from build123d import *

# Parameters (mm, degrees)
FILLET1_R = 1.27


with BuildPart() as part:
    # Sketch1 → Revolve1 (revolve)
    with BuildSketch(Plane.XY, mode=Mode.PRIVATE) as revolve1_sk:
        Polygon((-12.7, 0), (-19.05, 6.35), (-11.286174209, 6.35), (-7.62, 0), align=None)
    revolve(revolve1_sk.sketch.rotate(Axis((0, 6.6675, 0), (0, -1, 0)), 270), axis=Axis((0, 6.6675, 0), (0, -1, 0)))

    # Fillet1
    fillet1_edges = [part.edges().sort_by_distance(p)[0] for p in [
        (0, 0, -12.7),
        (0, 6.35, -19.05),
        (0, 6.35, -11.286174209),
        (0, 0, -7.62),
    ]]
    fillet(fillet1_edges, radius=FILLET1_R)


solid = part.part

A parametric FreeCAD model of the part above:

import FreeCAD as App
import Part
import Sketcher

V = App.Vector
Q = App.Units.Quantity


def edges_at(feature, points):
    """Names of the edges that pass closest to the given points."""
    edges = feature.Shape.Edges
    near = lambda p: min(range(len(edges)), key=lambda i: edges[i].distToShape(Part.Vertex(*p))[0])
    return sorted({f"Edge{near(p) + 1}" for p in points})

doc = App.newDocument("Part")
body = doc.addObject("PartDesign::Body", "Body")

sketch1 = body.newObject("Sketcher::SketchObject", "Sketch")
sketch1.AttachmentSupport = (doc.getObject("XY_Plane"), [""])
sketch1.MapMode = "FlatFace"
sketch1.addGeometry([
    Part.LineSegment(V(-19, 6, 0), V(-13, 0, 0)),
    Part.LineSegment(V(-13, 0, 0), V(-8, 0, 0)),
    Part.LineSegment(V(-8, 0, 0), V(-11, 6, 0)),
    Part.LineSegment(V(-11, 6, 0), V(-19, 6, 0)),
], False)
sketch1.addConstraint([
    Sketcher.Constraint("Coincident", 0, 2, 1, 1),
    Sketcher.Constraint("Coincident", 1, 2, 2, 1),
    Sketcher.Constraint("Coincident", 2, 2, 3, 1),
    Sketcher.Constraint("Coincident", 3, 2, 0, 1),
    Sketcher.Constraint("Horizontal", 1),
    Sketcher.Constraint("Horizontal", 3),
    Sketcher.Constraint("PointOnObject", 0, 2, -1),
    Sketcher.Constraint("DistanceX", 1, 1, 1, 2, Q("0.2 in")),
    Sketcher.Constraint("Angle", 0, Q("-45 deg")),
    Sketcher.Constraint("Angle", 2, Q("120 deg")),
    Sketcher.Constraint("DistanceX", 0, 2, -1, 1, Q("0.5 in")),
    Sketcher.Constraint("DistanceY", -1, 1, 2, 2, Q("0.25 in")),
])
revolution = body.newObject("PartDesign::Revolution", "Revolution")
revolution.Profile = sketch1
revolution.ReferenceAxis = (sketch1, ["V_Axis"])
revolution.Angle = 360
doc.recompute()

fillet = body.newObject("PartDesign::Fillet", "Fillet")
fillet.Base = (revolution, edges_at(revolution, [
    (0, 0, -12.7),
    (0, 6.35, -19.05),
    (0, 6.35, -11.286),
    (0, 0, -7.62),
]))
fillet.Radius = Q("0.05 in")

doc.recompute()
